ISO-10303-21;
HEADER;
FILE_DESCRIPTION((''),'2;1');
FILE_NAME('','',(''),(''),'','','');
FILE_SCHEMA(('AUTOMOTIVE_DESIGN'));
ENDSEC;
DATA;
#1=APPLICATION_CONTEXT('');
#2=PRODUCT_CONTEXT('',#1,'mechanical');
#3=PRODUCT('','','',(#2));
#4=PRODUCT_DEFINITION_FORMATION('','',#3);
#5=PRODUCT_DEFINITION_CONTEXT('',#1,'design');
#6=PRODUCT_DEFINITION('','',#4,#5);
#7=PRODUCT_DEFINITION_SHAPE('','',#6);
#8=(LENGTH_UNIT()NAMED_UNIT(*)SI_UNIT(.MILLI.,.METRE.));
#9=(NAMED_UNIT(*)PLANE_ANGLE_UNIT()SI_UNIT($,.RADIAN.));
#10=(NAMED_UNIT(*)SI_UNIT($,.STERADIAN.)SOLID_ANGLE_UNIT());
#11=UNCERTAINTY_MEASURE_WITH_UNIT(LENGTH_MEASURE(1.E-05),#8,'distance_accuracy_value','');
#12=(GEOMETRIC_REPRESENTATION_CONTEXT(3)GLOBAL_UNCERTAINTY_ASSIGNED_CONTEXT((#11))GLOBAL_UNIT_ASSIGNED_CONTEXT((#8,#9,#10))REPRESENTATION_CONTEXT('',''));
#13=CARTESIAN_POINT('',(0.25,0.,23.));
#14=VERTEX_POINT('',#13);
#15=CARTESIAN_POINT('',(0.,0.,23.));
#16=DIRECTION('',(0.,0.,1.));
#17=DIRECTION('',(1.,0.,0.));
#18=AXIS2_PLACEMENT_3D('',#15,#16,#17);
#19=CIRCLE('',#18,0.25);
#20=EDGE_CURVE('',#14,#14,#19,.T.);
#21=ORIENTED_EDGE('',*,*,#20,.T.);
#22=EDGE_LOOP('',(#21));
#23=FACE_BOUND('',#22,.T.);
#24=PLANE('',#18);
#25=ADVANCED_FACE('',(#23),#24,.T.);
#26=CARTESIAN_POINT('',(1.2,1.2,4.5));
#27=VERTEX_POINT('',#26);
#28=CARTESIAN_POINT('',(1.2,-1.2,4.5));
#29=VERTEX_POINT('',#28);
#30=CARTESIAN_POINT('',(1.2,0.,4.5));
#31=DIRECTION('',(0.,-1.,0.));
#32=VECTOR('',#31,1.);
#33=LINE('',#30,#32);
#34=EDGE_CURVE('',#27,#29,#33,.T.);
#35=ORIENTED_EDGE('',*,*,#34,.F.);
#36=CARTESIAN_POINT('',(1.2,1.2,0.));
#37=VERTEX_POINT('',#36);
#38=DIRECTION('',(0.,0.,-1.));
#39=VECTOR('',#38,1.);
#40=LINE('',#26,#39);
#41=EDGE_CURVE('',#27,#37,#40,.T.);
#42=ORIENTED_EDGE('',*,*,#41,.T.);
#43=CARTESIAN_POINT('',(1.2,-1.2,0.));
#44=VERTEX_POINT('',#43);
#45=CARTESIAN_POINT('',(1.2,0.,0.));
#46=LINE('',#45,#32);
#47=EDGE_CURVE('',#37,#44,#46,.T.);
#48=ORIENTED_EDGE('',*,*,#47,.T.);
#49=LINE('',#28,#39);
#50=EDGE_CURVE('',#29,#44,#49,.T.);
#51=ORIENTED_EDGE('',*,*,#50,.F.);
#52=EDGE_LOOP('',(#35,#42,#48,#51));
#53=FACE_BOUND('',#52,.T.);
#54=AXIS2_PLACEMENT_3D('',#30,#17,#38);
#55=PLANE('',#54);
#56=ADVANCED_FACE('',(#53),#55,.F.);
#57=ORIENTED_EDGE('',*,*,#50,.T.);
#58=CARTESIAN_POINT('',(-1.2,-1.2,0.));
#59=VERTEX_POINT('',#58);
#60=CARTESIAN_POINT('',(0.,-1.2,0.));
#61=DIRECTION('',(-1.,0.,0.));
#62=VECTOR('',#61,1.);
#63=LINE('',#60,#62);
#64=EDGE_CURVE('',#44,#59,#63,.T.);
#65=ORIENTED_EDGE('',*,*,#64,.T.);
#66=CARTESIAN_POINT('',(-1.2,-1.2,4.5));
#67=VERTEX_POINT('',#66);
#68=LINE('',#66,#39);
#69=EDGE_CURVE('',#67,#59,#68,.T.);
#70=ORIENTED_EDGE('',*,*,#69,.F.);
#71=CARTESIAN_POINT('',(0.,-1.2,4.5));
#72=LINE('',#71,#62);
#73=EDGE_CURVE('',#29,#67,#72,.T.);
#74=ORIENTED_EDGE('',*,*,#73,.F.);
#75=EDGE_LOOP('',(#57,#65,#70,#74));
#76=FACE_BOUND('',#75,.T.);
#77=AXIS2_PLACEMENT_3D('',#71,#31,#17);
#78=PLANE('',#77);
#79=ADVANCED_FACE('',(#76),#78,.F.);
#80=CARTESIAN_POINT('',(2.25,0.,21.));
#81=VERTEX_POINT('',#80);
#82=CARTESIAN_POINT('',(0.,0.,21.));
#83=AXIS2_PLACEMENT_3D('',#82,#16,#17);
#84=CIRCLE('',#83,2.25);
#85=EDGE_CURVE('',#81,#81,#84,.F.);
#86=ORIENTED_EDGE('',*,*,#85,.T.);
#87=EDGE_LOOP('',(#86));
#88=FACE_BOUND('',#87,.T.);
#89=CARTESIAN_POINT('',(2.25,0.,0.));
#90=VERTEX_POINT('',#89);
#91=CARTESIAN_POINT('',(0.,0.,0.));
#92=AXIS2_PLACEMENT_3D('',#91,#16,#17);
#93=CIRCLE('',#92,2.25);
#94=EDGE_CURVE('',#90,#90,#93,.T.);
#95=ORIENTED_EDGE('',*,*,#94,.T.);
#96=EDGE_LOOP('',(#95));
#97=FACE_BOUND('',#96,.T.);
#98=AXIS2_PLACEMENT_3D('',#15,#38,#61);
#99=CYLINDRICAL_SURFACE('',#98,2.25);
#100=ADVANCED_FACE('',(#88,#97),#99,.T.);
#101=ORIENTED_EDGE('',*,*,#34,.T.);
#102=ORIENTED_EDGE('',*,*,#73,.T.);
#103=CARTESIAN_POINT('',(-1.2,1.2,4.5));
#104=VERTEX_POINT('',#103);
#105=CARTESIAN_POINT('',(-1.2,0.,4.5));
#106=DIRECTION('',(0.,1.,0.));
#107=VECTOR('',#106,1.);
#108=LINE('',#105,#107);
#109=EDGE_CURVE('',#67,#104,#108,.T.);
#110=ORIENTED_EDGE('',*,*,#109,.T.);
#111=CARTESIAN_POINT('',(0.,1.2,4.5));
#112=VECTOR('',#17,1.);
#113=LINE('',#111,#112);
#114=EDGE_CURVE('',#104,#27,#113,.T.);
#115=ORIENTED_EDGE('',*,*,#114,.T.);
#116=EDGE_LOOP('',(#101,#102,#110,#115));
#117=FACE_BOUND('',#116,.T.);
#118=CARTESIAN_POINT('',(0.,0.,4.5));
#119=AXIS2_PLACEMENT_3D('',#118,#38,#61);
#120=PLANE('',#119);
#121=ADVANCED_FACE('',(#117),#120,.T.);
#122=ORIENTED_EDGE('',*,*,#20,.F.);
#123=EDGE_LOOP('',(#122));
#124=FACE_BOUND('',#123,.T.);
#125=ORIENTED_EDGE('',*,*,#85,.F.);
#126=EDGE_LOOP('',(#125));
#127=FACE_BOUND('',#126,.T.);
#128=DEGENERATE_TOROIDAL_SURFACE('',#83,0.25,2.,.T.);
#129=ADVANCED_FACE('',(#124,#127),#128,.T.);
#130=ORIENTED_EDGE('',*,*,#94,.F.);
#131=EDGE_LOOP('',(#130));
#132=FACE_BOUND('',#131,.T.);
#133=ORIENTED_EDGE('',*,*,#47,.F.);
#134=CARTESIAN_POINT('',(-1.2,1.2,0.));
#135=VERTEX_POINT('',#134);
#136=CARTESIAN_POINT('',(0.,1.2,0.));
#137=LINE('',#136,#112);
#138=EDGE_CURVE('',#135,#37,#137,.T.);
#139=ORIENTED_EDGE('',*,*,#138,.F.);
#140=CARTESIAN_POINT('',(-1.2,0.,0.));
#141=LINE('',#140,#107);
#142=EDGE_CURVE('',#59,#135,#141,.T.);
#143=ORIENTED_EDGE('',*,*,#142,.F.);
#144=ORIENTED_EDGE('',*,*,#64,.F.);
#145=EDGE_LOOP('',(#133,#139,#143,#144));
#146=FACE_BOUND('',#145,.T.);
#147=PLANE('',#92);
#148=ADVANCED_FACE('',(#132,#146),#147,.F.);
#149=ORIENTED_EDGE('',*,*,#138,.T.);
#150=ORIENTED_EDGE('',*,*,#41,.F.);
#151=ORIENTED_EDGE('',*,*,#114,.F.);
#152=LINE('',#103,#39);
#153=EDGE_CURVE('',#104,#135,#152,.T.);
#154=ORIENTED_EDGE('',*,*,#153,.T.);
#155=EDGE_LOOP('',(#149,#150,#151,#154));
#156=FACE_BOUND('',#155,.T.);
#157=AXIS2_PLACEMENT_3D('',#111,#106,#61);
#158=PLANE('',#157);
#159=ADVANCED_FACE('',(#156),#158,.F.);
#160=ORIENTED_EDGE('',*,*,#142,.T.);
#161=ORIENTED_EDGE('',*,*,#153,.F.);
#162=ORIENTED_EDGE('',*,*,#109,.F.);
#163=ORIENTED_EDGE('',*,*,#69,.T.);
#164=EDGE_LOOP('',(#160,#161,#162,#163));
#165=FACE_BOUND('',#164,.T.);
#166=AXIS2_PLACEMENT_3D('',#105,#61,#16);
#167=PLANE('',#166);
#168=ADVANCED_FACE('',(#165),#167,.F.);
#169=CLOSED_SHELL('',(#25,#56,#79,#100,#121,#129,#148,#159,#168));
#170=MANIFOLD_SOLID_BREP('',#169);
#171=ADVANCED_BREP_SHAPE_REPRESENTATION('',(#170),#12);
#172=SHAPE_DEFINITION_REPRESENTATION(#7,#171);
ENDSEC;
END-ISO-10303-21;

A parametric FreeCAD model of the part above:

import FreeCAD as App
import Part
import Sketcher


def edges_at(feature, points):
    """Names of the edges that pass closest to the given points."""
    edges = feature.Shape.Edges
    near = lambda p: min(range(len(edges)), key=lambda i: edges[i].distToShape(Part.Vertex(*p))[0])
    return sorted({f"Edge{near(p) + 1}" for p in points})


def add_polygon(sketch, points):
    """Adds a closed chain of lines whose ends are joined by coincident constraints."""
    first, n = sketch.GeometryCount, len(points)
    for a, b in zip(points, points[1:] + points[:1]):
        sketch.addGeometry(Part.LineSegment(App.Vector(*a, 0), App.Vector(*b, 0)), False)
    for i in range(n):
        sketch.addConstraint(Sketcher.Constraint("Coincident", first + i, 2, first + (i + 1) % n, 1))

doc = App.newDocument("Part")
body = doc.addObject("PartDesign::Body", "Body")

# Sketch on XY plane
sketch1 = body.newObject("Sketcher::SketchObject", "Sketch")
sketch1.AttachmentSupport = (doc.getObject("XY_Plane"), [""])
sketch1.MapMode = "FlatFace"
sketch1.addGeometry(Part.Circle(App.Vector(0, 0, 0), App.Vector(0, 0, 1), 2.2), False)
sketch1.addConstraint(Sketcher.Constraint("Coincident", 0, 3, -1, 1))
sketch1.addConstraint(Sketcher.Constraint("Diameter", 0, 4.5))
pad1 = body.newObject("PartDesign::Pad", "Pad")
pad1.Profile = sketch1
pad1.Length = 23

# Sketch on XY plane
sketch2 = body.newObject("Sketcher::SketchObject", "Sketch001")
sketch2.AttachmentSupport = (doc.getObject("XY_Plane"), [""])
sketch2.MapMode = "FlatFace"
add_polygon(sketch2, [(-1.2, 1.2), (-1.2, -1.2), (1.2, -1.2), (1.2, 1.2)])  # lines 0-3
sketch2.addConstraint(Sketcher.Constraint("Vertical", 0))
sketch2.addConstraint(Sketcher.Constraint("Horizontal", 1))
sketch2.addConstraint(Sketcher.Constraint("Vertical", 2))
sketch2.addConstraint(Sketcher.Constraint("Horizontal", 3))
sketch2.addConstraint(Sketcher.Constraint("Symmetric", 0, 2, 2, 2, -1, 1))
sketch2.addConstraint(Sketcher.Constraint("Equal", 3, 0))
sketch2.addConstraint(Sketcher.Constraint("DistanceX", 1, 1, 1, 2, 2.4))
pocket1 = body.newObject("PartDesign::Pocket", "Pocket")
pocket1.Profile = sketch2
pocket1.Length = 4.5
pocket1.Reversed = True
doc.recompute()

fillet = body.newObject("PartDesign::Fillet", "Fillet")
fillet.Base = (pocket1, edges_at(pocket1, [(-2.25, 0, 23)]))
fillet.Radius = 2

doc.recompute()
